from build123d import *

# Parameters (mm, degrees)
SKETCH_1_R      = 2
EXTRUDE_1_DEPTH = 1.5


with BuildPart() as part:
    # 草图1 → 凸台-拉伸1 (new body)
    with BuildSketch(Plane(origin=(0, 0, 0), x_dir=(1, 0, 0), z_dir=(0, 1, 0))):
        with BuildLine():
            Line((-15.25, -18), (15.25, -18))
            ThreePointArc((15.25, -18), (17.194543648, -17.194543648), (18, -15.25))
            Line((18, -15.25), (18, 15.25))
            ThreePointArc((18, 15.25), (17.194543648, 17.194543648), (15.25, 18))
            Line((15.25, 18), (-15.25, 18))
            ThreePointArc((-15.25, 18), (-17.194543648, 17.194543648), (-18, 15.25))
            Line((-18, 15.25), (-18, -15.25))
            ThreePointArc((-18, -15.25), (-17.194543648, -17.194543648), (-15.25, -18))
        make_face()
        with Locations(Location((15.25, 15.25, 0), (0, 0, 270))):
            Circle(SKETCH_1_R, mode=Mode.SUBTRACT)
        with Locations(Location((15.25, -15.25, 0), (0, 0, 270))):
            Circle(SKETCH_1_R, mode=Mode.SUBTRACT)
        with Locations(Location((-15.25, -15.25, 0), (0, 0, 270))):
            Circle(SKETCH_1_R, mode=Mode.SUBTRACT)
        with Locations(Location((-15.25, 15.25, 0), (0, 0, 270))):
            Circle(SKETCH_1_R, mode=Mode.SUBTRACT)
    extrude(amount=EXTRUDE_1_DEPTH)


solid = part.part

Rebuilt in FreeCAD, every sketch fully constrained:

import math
import FreeCAD as App
import Part
import Sketcher

doc = App.newDocument("Part")
params = doc.addObject("Spreadsheet::Sheet", "Params")
for row, (alias, value) in enumerate([
    ("sketch1_diameter", "4 mm"),
    ("sketch1_radius", "2.75 mm"),
    ("sketch1_width", "30.5 mm"),
    ("pad1_length", "1.5 mm"),
], start=1):
    params.set(f"A{row}", alias)
    params.set(f"B{row}", "=" + value)
    params.setAlias(f"B{row}", alias)

body = doc.addObject("PartDesign::Body", "Body")

sketch1 = body.newObject("Sketcher::SketchObject", "Sketch")
sketch1.AttachmentSupport = (doc.getObject("XZ_Plane"), [""])
sketch1.MapMode = "FlatFace"
sketch1.addGeometry([
    Part.LineSegment(App.Vector(-15.2, 18, 0), App.Vector(15.2, 18, 0)),
    Part.ArcOfCircle(Part.Circle(App.Vector(15.2, 15.2, 0), App.Vector(0, 0, 1), 2.8), math.radians(0), math.radians(90)),
    Part.LineSegment(App.Vector(18, 15.2, 0), App.Vector(18, -15.2, 0)),
    Part.ArcOfCircle(Part.Circle(App.Vector(15.2, -15.2, 0), App.Vector(0, 0, 1), 2.8), math.radians(-90), math.radians(0)),
    Part.LineSegment(App.Vector(15.2, -18, 0), App.Vector(-15.2, -18, 0)),
    Part.ArcOfCircle(Part.Circle(App.Vector(-15.2, -15.2, 0), App.Vector(0, 0, 1), 2.8), math.radians(-180), math.radians(-90)),
    Part.LineSegment(App.Vector(-18, -15.2, 0), App.Vector(-18, 15.2, 0)),
    Part.ArcOfCircle(Part.Circle(App.Vector(-15.2, 15.2, 0), App.Vector(0, 0, 1), 2.8), math.radians(90), math.radians(180)),
    Part.Circle(App.Vector(-15.2, 15.2, 0), App.Vector(0, 0, 1), 2),
    Part.Circle(App.Vector(15.2, 15.2, 0), App.Vector(0, 0, 1), 2),
    Part.Circle(App.Vector(-15.2, -15.2, 0), App.Vector(0, 0, 1), 2),
    Part.Circle(App.Vector(15.2, -15.2, 0), App.Vector(0, 0, 1), 2),
], False)
sketch1.addConstraint([
    Sketcher.Constraint("Tangent", 0, 2, 1, 2),
    Sketcher.Constraint("Tangent", 1, 1, 2, 1),
    Sketcher.Constraint("Tangent", 2, 2, 3, 2),
    Sketcher.Constraint("Tangent", 3, 1, 4, 1),
    Sketcher.Constraint("Tangent", 4, 2, 5, 2),
    Sketcher.Constraint("Tangent", 5, 1, 6, 1),
    Sketcher.Constraint("Tangent", 6, 2, 7, 2),
    Sketcher.Constraint("Tangent", 7, 1, 0, 1),
    Sketcher.Constraint("Horizontal", 0),
    Sketcher.Constraint("Vertical", 2),
    Sketcher.Constraint("Horizontal", 4),
    Sketcher.Constraint("Vertical", 6),
    Sketcher.Constraint("Coincident", 8, 3, 7, 3),
    Sketcher.Constraint("Coincident", 9, 3, 1, 3),
    Sketcher.Constraint("Coincident", 10, 3, 5, 3),
    Sketcher.Constraint("Coincident", 11, 3, 3, 3),
    Sketcher.Constraint("Equal", 1, 3),
    Sketcher.Constraint("Equal", 3, 5),
    Sketcher.Constraint("Equal", 5, 7),
    Sketcher.Constraint("Equal", 8, 9),
    Sketcher.Constraint("Equal", 9, 10),
    Sketcher.Constraint("Equal", 10, 11),
    Sketcher.Constraint("Symmetric", 1, 3, 5, 3, -1, 1),
    Sketcher.Constraint("Equal", 4, 2),
    Sketcher.Constraint("Diameter", 8, 4.0),
    Sketcher.Constraint("Radius", 1, 2.75),
    Sketcher.Constraint("DistanceX", 0, 1, 0, 2, 30.5),
])
sketch1.setExpression("Constraints[24]", "Params.sketch1_diameter")
sketch1.setExpression("Constraints[25]", "Params.sketch1_radius")
sketch1.setExpression("Constraints[26]", "Params.sketch1_width")
pad1 = body.newObject("PartDesign::Pad", "Pad")
pad1.Profile = sketch1
pad1.setExpression("Length", "Params.pad1_length")
pad1.Reversed = True

doc.recompute()
